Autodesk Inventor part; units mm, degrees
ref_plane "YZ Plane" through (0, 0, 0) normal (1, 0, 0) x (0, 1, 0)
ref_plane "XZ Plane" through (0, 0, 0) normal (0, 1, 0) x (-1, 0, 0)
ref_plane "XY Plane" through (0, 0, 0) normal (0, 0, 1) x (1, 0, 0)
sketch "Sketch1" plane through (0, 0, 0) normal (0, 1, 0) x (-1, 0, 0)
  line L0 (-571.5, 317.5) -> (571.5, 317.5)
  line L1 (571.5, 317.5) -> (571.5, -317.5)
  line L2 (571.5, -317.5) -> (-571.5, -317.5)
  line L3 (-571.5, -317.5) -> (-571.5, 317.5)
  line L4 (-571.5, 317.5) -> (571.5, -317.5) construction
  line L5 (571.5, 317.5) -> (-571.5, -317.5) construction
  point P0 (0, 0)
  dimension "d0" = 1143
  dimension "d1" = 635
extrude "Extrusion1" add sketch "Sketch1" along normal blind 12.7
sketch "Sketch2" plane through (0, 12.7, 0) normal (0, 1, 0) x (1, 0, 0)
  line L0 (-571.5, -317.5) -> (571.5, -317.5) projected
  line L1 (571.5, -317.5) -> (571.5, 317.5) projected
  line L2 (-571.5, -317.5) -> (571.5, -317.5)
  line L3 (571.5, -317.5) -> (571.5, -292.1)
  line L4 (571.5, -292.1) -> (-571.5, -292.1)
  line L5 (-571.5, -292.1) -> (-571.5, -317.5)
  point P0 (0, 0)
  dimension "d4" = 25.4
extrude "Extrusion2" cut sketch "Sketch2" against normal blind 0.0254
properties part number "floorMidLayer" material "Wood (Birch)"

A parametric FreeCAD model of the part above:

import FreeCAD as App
import Part
import Sketcher
from FreeCAD import Vector
Q = App.Units.Quantity


def add_polygon(sketch, points):
    """Adds a closed chain of lines whose ends are joined by coincident constraints."""
    first, n = sketch.GeometryCount, len(points)
    for a, b in zip(points, points[1:] + points[:1]):
        sketch.addGeometry(Part.LineSegment(App.Vector(*a, 0), App.Vector(*b, 0)), False)
    for i in range(n):
        sketch.addConstraint(Sketcher.Constraint("Coincident", first + i, 2, first + (i + 1) % n, 1))

doc = App.newDocument("Part")
params = doc.addObject("Spreadsheet::Sheet", "Params")
for row, (alias, value) in enumerate([
    ("sketch1_width", "45 in"),
    ("sketch1_height", "25 in"),
    ("pad1_length", "0.5 in"),
    ("sketch2_height", "1 in"),
    ("sketch2_width", "45 in"),
    ("pocket1_length", "0.001 in"),
], start=1):
    params.set(f"A{row}", alias)
    params.set(f"B{row}", "=" + value)
    params.setAlias(f"B{row}", alias)

body = doc.addObject("PartDesign::Body", "Body")

# Sketch on XZ plane
sketch1 = body.newObject("Sketcher::SketchObject", "Sketch")
sketch1.AttachmentSupport = (doc.getObject("XZ_Plane"), [""])
sketch1.MapMode = "FlatFace"
add_polygon(sketch1, [(-572, 318), (572, 318), (572, -318), (-572, -318)])  # lines 0-3
sketch1.addConstraint(Sketcher.Constraint("Horizontal", 0))
sketch1.addConstraint(Sketcher.Constraint("Vertical", 1))
sketch1.addConstraint(Sketcher.Constraint("Horizontal", 2))
sketch1.addConstraint(Sketcher.Constraint("Vertical", 3))
sketch1.addConstraint(Sketcher.Constraint("Symmetric", 0, 2, 2, 2, -1, 1))
sketch1.addConstraint(Sketcher.Constraint("DistanceX", 0, 1, 0, 2, Q("45 in")))
sketch1.addConstraint(Sketcher.Constraint("DistanceY", 1, 2, 1, 1, Q("25 in")))
sketch1.setExpression("Constraints[9]", "Params.sketch1_width")
sketch1.setExpression("Constraints[10]", "Params.sketch1_height")
pad1 = body.newObject("PartDesign::Pad", "Pad")
pad1.Profile = sketch1
pad1.setExpression("Length", "Params.pad1_length")
pad1.Reversed = True

# Sketch on XZ plane
sketch2 = body.newObject("Sketcher::SketchObject", "Sketch001")
sketch2.AttachmentSupport = (doc.getObject("XZ_Plane"), [""])
sketch2.MapMode = "FlatFace"
sketch2.AttachmentOffset = App.Placement(Vector(0, 0, -0.5 * 25.4), App.Rotation())
add_polygon(sketch2, [(-572, 292), (-572, 318), (572, 318), (572, 292)])  # lines 0-3
sketch2.addConstraint(Sketcher.Constraint("Vertical", 0))
sketch2.addConstraint(Sketcher.Constraint("Horizontal", 1))
sketch2.addConstraint(Sketcher.Constraint("Vertical", 2))
sketch2.addConstraint(Sketcher.Constraint("Horizontal", 3))
sketch2.addConstraint(Sketcher.Constraint("DistanceY", 0, 1, 0, 2, Q("1 in")))
sketch2.addConstraint(Sketcher.Constraint("DistanceX", 1, 1, 1, 2, Q("45 in")))
sketch2.addConstraint(Sketcher.Constraint("DistanceX", 0, 2, -1, 1, Q("22.5 in")))
sketch2.addConstraint(Sketcher.Constraint("DistanceY", -1, 1, 0, 2, Q("12.5 in")))
sketch2.setExpression("Constraints[8]", "Params.sketch2_height")
sketch2.setExpression("Constraints[9]", "Params.sketch2_width")
pocket1 = body.newObject("PartDesign::Pocket", "Pocket")
pocket1.Profile = sketch2
pocket1.setExpression("Length", "Params.pocket1_length")
pocket1.Reversed = True

doc.recompute()
